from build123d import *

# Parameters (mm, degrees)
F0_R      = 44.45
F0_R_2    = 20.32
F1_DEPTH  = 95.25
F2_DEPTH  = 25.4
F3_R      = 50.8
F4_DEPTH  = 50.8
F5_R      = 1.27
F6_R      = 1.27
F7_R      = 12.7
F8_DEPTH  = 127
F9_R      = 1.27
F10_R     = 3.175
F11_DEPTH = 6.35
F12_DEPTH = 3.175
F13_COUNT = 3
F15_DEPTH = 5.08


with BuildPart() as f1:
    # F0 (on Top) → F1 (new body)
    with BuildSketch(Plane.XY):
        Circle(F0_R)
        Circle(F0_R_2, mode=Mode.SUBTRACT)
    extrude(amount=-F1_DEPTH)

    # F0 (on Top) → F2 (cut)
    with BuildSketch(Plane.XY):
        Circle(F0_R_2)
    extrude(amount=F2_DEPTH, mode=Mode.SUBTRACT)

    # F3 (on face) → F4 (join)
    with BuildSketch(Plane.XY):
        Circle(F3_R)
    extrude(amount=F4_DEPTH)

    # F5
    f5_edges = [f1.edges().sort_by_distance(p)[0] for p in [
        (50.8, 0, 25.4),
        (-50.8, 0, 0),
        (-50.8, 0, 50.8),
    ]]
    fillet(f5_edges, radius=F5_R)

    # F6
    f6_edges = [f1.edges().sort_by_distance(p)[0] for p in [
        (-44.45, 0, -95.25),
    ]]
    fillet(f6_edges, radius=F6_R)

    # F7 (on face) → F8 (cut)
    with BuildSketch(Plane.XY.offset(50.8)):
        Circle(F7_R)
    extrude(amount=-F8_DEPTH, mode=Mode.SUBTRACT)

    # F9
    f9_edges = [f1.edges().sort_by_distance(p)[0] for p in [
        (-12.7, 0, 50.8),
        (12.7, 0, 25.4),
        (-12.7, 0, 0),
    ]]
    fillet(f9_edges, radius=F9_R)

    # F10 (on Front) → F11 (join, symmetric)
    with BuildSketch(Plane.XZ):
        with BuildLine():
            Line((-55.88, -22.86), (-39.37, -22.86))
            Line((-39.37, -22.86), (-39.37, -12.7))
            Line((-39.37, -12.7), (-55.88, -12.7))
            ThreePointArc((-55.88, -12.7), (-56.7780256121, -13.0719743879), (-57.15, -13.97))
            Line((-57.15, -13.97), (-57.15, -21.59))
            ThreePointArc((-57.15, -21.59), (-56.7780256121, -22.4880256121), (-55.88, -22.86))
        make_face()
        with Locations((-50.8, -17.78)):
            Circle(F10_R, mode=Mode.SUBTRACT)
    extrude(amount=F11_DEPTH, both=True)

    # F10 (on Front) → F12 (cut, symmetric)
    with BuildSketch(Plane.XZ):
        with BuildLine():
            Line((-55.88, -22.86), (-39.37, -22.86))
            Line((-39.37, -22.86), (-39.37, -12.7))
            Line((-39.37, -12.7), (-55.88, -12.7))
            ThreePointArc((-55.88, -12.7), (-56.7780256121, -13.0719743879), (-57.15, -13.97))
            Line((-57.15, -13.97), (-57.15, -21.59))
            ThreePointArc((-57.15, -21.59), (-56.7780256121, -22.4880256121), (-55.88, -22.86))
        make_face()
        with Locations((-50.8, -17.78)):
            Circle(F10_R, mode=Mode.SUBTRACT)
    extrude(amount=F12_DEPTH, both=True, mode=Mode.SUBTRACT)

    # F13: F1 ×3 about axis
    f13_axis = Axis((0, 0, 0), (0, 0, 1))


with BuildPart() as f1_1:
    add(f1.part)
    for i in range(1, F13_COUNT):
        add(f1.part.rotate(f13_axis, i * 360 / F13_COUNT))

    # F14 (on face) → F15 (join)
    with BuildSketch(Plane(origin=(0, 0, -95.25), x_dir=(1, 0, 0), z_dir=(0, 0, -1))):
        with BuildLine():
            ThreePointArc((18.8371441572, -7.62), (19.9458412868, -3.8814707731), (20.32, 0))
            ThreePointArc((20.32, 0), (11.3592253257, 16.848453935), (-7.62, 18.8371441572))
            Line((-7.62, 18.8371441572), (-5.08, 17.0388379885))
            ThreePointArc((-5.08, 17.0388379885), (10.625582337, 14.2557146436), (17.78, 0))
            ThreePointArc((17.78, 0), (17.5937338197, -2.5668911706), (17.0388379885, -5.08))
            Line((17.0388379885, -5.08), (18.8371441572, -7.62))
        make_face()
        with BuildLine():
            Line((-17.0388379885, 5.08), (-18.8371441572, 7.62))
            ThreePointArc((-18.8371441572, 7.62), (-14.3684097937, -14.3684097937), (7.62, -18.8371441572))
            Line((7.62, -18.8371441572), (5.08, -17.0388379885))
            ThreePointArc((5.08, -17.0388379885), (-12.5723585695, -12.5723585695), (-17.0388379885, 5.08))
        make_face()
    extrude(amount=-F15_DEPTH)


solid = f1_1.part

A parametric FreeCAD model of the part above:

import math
import FreeCAD as App
import Part
import Sketcher
from FreeCAD import Vector
Q = App.Units.Quantity


def edges_at(feature, points):
    """Names of the edges that pass closest to the given points."""
    edges = feature.Shape.Edges
    near = lambda p: min(range(len(edges)), key=lambda i: edges[i].distToShape(Part.Vertex(*p))[0])
    return sorted({f"Edge{near(p) + 1}" for p in points})

doc = App.newDocument("Part")
body = doc.addObject("PartDesign::Body", "Body")

sketch1 = body.newObject("Sketcher::SketchObject", "Sketch")
sketch1.AttachmentSupport = (doc.getObject("XY_Plane"), [""])
sketch1.MapMode = "FlatFace"
sketch1.addGeometry([
    Part.Circle(Vector(0, 0, 0), Vector(0, 0, 1), 44.45),
    Part.Circle(Vector(0, 0, 0), Vector(0, 0, 1), 20.32),
], False)
sketch1.addConstraint([
    Sketcher.Constraint("Coincident", 0, 3, -1, 1),
    Sketcher.Constraint("Coincident", 1, 3, -1, 1),
    Sketcher.Constraint("Diameter", 0, Q("3.5 in")),
    Sketcher.Constraint("Diameter", 1, Q("1.6 in")),
])
pad1 = body.newObject("PartDesign::Pad", "Pad")
pad1.Profile = sketch1
pad1.Length = Q("3.75 in")
pad1.Reversed = True

sketch2 = body.newObject("Sketcher::SketchObject", "Sketch001")
sketch2.AttachmentSupport = (doc.getObject("XY_Plane"), [""])
sketch2.MapMode = "FlatFace"
sketch2.addGeometry(Part.Circle(Vector(0, 0, 0), Vector(0, 0, 1), 20.32), False)
sketch2.addConstraint([
    Sketcher.Constraint("Coincident", 0, 3, -1, 1),
    Sketcher.Constraint("Diameter", 0, Q("1.6 in")),
])
pocket1 = body.newObject("PartDesign::Pocket", "Pocket")
pocket1.Profile = sketch2
pocket1.Length = Q("1 in")
pocket1.Reversed = True

sketch3 = body.newObject("Sketcher::SketchObject", "Sketch002")
sketch3.AttachmentSupport = (doc.getObject("XY_Plane"), [""])
sketch3.MapMode = "FlatFace"
sketch3.addGeometry(Part.Circle(Vector(0, 0, 0), Vector(0, 0, 1), 50.8), False)
sketch3.addConstraint([
    Sketcher.Constraint("Coincident", 0, 3, -1, 1),
    Sketcher.Constraint("Diameter", 0, Q("4 in")),
])
pad2 = body.newObject("PartDesign::Pad", "Pad001")
pad2.Profile = sketch3
pad2.Length = Q("2 in")
doc.recompute()

fillet = body.newObject("PartDesign::Fillet", "Fillet")
fillet.Base = (pad2, edges_at(pad2, [(50.8, 0, 25.4), (-50.8, 0, 0), (-50.8, 0, 50.8)]))
fillet.Radius = Q("0.05 in")
doc.recompute()

fillet2 = body.newObject("PartDesign::Fillet", "Fillet001")
fillet2.Base = (fillet, edges_at(fillet, [(-44.45, 0, -95.25)]))
fillet2.Radius = Q("0.05 in")

sketch4 = body.newObject("Sketcher::SketchObject", "Sketch003")
sketch4.AttachmentSupport = (doc.getObject("XY_Plane"), [""])
sketch4.MapMode = "FlatFace"
sketch4.AttachmentOffset = App.Placement(Vector(0, 0, 2 * 25.4), App.Rotation())
sketch4.addGeometry(Part.Circle(Vector(0, 0, 0), Vector(0, 0, 1), 12.7), False)
sketch4.addConstraint([
    Sketcher.Constraint("Coincident", 0, 3, -1, 1),
    Sketcher.Constraint("Diameter", 0, Q("1 in")),
])
pocket2 = body.newObject("PartDesign::Pocket", "Pocket001")
pocket2.Profile = sketch4
pocket2.Length = Q("5 in")
doc.recompute()

fillet3 = body.newObject("PartDesign::Fillet", "Fillet002")
fillet3.Base = (pocket2, edges_at(pocket2, [(-12.7, 0, 50.8), (12.7, 0, 25.4), (-12.7, 0, 0)]))
fillet3.Radius = Q("0.05 in")

sketch5 = body.newObject("Sketcher::SketchObject", "Sketch004")
sketch5.AttachmentSupport = (doc.getObject("XZ_Plane"), [""])
sketch5.MapMode = "FlatFace"
sketch5.addGeometry([
    Part.LineSegment(Vector(-55.88, -22.86, 0), Vector(-39.37, -22.86, 0)),
    Part.LineSegment(Vector(-39.37, -22.86, 0), Vector(-39.37, -12.7, 0)),
    Part.LineSegment(Vector(-39.37, -12.7, 0), Vector(-55.88, -12.7, 0)),
    Part.ArcOfCircle(Part.Circle(Vector(-55.88, -13.97, 0), Vector(0, 0, 1), 1.27), math.radians(90), math.radians(180)),
    Part.LineSegment(Vector(-57.15, -13.97, 0), Vector(-57.15, -21.59, 0)),
    Part.ArcOfCircle(Part.Circle(Vector(-55.88, -21.59, 0), Vector(0, 0, 1), 1.27), math.radians(180), math.radians(270)),
    Part.Circle(Vector(-50.8, -17.78, 0), Vector(0, 0, 1), 3.175),
], False)
sketch5.addConstraint([
    Sketcher.Constraint("Coincident", 0, 2, 1, 1),
    Sketcher.Constraint("Coincident", 1, 2, 2, 1),
    Sketcher.Constraint("Tangent", 2, 2, 3, 1),
    Sketcher.Constraint("Tangent", 3, 2, 4, 1),
    Sketcher.Constraint("Tangent", 4, 2, 5, 1),
    Sketcher.Constraint("Tangent", 5, 2, 0, 1),
    Sketcher.Constraint("Horizontal", 0),
    Sketcher.Constraint("Vertical", 1),
    Sketcher.Constraint("Horizontal", 2),
    Sketcher.Constraint("Vertical", 4),
    Sketcher.Constraint("Equal", 3, 5),
    Sketcher.Constraint("Diameter", 6, Q("0.25 in")),
    Sketcher.Constraint("Radius", 3, Q("0.05 in")),
    Sketcher.Constraint("DistanceY", 1, 1, 1, 2, Q("0.4 in")),
    Sketcher.Constraint("DistanceX", 6, 3, -1, 1, Q("2 in")),
    Sketcher.Constraint("DistanceX", 0, 1, 0, 2, Q("0.65 in")),
    Sketcher.Constraint("DistanceX", 3, 3, -1, 1, Q("2.2 in")),
    Sketcher.Constraint("DistanceY", 6, 3, -1, 1, Q("0.7 in")),
    Sketcher.Constraint("DistanceY", 0, 2, -1, 1, Q("0.9 in")),
])
pad3 = body.newObject("PartDesign::Pad", "Pad002")
pad3.Profile = sketch5
pad3.Length = Q("0.5 in")
pad3.Midplane = True

sketch6 = body.newObject("Sketcher::SketchObject", "Sketch005")
sketch6.AttachmentSupport = (doc.getObject("XZ_Plane"), [""])
sketch6.MapMode = "FlatFace"
sketch6.addGeometry([
    Part.LineSegment(Vector(-55.88, -22.86, 0), Vector(-39.37, -22.86, 0)),
    Part.LineSegment(Vector(-39.37, -22.86, 0), Vector(-39.37, -12.7, 0)),
    Part.LineSegment(Vector(-39.37, -12.7, 0), Vector(-55.88, -12.7, 0)),
    Part.ArcOfCircle(Part.Circle(Vector(-55.88, -13.97, 0), Vector(0, 0, 1), 1.27), math.radians(90), math.radians(180)),
    Part.LineSegment(Vector(-57.15, -13.97, 0), Vector(-57.15, -21.59, 0)),
    Part.ArcOfCircle(Part.Circle(Vector(-55.88, -21.59, 0), Vector(0, 0, 1), 1.27), math.radians(180), math.radians(270)),
    Part.Circle(Vector(-50.8, -17.78, 0), Vector(0, 0, 1), 3.175),
], False)
sketch6.addConstraint([
    Sketcher.Constraint("Coincident", 0, 2, 1, 1),
    Sketcher.Constraint("Coincident", 1, 2, 2, 1),
    Sketcher.Constraint("Tangent", 2, 2, 3, 1),
    Sketcher.Constraint("Tangent", 3, 2, 4, 1),
    Sketcher.Constraint("Tangent", 4, 2, 5, 1),
    Sketcher.Constraint("Tangent", 5, 2, 0, 1),
    Sketcher.Constraint("Horizontal", 0),
    Sketcher.Constraint("Vertical", 1),
    Sketcher.Constraint("Horizontal", 2),
    Sketcher.Constraint("Vertical", 4),
    Sketcher.Constraint("Equal", 3, 5),
    Sketcher.Constraint("Diameter", 6, Q("0.25 in")),
    Sketcher.Constraint("Radius", 3, Q("0.05 in")),
    Sketcher.Constraint("DistanceY", 1, 1, 1, 2, Q("0.4 in")),
    Sketcher.Constraint("DistanceX", 6, 3, -1, 1, Q("2 in")),
    Sketcher.Constraint("DistanceX", 0, 1, 0, 2, Q("0.65 in")),
    Sketcher.Constraint("DistanceX", 3, 3, -1, 1, Q("2.2 in")),
    Sketcher.Constraint("DistanceY", 6, 3, -1, 1, Q("0.7 in")),
    Sketcher.Constraint("DistanceY", 0, 2, -1, 1, Q("0.9 in")),
])
pocket3 = body.newObject("PartDesign::Pocket", "Pocket002")
pocket3.Profile = sketch6
pocket3.Length = Q("0.25 in")
pocket3.Midplane = True
body2 = doc.addObject("PartDesign::Body", "Body001")
doc.recompute()

body2.BaseFeature = body
doc.recompute()

body3 = doc.addObject("PartDesign::Body", "Body002")
body3.BaseFeature = body
body3.Placement = App.Placement(Vector(0, 0, 0), App.Rotation(Vector(0, 0, 1), 120))
boolean = body2.newObject("PartDesign::Boolean", "Boolean")
boolean.Type = "Fuse"
boolean.addObjects([body3])
doc.recompute()

body.Placement = App.Placement(Vector(0, 0, 0), App.Rotation(Vector(0, 0, 1), 240))
boolean2 = body2.newObject("PartDesign::Boolean", "Boolean001")
boolean2.Type = "Fuse"
boolean2.addObjects([body])

sketch7 = body2.newObject("Sketcher::SketchObject", "Sketch006")
sketch7.AttachmentSupport = (doc.getObject("XY_Plane001"), [""])
sketch7.MapMode = "FlatFace"
sketch7.AttachmentOffset = App.Placement(Vector(0, 0, -3.75 * 25.4), App.Rotation())
sketch7.addGeometry([
    Part.ArcOfCircle(Part.Circle(Vector(0, 0, 0), Vector(0, 0, 1), 20.32), math.radians(0), math.radians(22.024313)),
    Part.ArcOfCircle(Part.Circle(Vector(0, 0, 0), Vector(0, 0, 1), 20.32), math.radians(-112.024313), math.radians(0)),
    Part.LineSegment(Vector(-7.62, -18.837144, 0), Vector(-5.08, -17.038838, 0)),
    Part.ArcOfCircle(Part.Circle(Vector(0, 0, 0), Vector(0, 0, 1), 17.78), math.radians(-106.60155), math.radians(0)),
    Part.ArcOfCircle(Part.Circle(Vector(0, 0, 0), Vector(0, 0, 1), 17.78), math.radians(0), math.radians(16.60155)),
    Part.LineSegment(Vector(17.038838, 5.08, 0), Vector(18.837144, 7.62, 0)),
    Part.LineSegment(Vector(-17.038838, -5.08, 0), Vector(-18.837144, -7.62, 0)),
    Part.ArcOfCircle(Part.Circle(Vector(0, 0, 0), Vector(0, 0, 1), 20.32), math.radians(67.975687), math.radians(202.024313)),
    Part.LineSegment(Vector(7.62, 18.837144, 0), Vector(5.08, 17.038838, 0)),
    Part.ArcOfCircle(Part.Circle(Vector(0, 0, 0), Vector(0, 0, 1), 17.78), math.radians(73.39845), math.radians(196.60155)),
], False)
sketch7.addConstraint([
    Sketcher.Constraint("Tangent", 0, 1, 1, 2),
    Sketcher.Constraint("Coincident", 1, 1, 2, 1),
    Sketcher.Constraint("Coincident", 2, 2, 3, 1),
    Sketcher.Constraint("Tangent", 3, 2, 4, 1),
    Sketcher.Constraint("Coincident", 4, 2, 5, 1),
    Sketcher.Constraint("Coincident", 5, 2, 0, 2),
    Sketcher.Constraint("Coincident", 6, 2, 7, 2),
    Sketcher.Constraint("Coincident", 7, 1, 8, 1),
    Sketcher.Constraint("Coincident", 8, 2, 9, 1),
    Sketcher.Constraint("Coincident", 9, 2, 6, 1),
    Sketcher.Constraint("Coincident", 0, 3, -1, 1),
    Sketcher.Constraint("Coincident", 3, 3, -1, 1),
    Sketcher.Constraint("Coincident", 7, 3, -1, 1),
    Sketcher.Constraint("Coincident", 9, 3, -1, 1),
    Sketcher.Constraint("Equal", 0, 1),
    Sketcher.Constraint("Equal", 3, 4),
    Sketcher.Constraint("Equal", 1, 7),
    Sketcher.Constraint("Equal", 4, 9),
    Sketcher.Constraint("PointOnObject", 0, 1, -1),
    Sketcher.Constraint("PointOnObject", 3, 2, -1),
    Sketcher.Constraint("Parallel", 5, 6),
    Sketcher.Constraint("Parallel", 2, 8),
    Sketcher.Constraint("Equal", 2, 5),
    Sketcher.Constraint("Equal", 5, 6),
    Sketcher.Constraint("Equal", 6, 8),
    Sketcher.Constraint("Radius", 0, Q("0.8 in")),
    Sketcher.Constraint("Radius", 3, Q("0.7 in")),
    Sketcher.Constraint("DistanceX", 1, 1, -1, 1, Q("0.3 in")),
    Sketcher.Constraint("DistanceX", 2, 2, -1, 1, Q("0.2 in")),
    Sketcher.Constraint("DistanceY", -1, 1, 4, 2, Q("0.2 in")),
])
pad4 = body2.newObject("PartDesign::Pad", "Pad003")
pad4.Profile = sketch7
pad4.Length = Q("0.2 in")

doc.recompute()
